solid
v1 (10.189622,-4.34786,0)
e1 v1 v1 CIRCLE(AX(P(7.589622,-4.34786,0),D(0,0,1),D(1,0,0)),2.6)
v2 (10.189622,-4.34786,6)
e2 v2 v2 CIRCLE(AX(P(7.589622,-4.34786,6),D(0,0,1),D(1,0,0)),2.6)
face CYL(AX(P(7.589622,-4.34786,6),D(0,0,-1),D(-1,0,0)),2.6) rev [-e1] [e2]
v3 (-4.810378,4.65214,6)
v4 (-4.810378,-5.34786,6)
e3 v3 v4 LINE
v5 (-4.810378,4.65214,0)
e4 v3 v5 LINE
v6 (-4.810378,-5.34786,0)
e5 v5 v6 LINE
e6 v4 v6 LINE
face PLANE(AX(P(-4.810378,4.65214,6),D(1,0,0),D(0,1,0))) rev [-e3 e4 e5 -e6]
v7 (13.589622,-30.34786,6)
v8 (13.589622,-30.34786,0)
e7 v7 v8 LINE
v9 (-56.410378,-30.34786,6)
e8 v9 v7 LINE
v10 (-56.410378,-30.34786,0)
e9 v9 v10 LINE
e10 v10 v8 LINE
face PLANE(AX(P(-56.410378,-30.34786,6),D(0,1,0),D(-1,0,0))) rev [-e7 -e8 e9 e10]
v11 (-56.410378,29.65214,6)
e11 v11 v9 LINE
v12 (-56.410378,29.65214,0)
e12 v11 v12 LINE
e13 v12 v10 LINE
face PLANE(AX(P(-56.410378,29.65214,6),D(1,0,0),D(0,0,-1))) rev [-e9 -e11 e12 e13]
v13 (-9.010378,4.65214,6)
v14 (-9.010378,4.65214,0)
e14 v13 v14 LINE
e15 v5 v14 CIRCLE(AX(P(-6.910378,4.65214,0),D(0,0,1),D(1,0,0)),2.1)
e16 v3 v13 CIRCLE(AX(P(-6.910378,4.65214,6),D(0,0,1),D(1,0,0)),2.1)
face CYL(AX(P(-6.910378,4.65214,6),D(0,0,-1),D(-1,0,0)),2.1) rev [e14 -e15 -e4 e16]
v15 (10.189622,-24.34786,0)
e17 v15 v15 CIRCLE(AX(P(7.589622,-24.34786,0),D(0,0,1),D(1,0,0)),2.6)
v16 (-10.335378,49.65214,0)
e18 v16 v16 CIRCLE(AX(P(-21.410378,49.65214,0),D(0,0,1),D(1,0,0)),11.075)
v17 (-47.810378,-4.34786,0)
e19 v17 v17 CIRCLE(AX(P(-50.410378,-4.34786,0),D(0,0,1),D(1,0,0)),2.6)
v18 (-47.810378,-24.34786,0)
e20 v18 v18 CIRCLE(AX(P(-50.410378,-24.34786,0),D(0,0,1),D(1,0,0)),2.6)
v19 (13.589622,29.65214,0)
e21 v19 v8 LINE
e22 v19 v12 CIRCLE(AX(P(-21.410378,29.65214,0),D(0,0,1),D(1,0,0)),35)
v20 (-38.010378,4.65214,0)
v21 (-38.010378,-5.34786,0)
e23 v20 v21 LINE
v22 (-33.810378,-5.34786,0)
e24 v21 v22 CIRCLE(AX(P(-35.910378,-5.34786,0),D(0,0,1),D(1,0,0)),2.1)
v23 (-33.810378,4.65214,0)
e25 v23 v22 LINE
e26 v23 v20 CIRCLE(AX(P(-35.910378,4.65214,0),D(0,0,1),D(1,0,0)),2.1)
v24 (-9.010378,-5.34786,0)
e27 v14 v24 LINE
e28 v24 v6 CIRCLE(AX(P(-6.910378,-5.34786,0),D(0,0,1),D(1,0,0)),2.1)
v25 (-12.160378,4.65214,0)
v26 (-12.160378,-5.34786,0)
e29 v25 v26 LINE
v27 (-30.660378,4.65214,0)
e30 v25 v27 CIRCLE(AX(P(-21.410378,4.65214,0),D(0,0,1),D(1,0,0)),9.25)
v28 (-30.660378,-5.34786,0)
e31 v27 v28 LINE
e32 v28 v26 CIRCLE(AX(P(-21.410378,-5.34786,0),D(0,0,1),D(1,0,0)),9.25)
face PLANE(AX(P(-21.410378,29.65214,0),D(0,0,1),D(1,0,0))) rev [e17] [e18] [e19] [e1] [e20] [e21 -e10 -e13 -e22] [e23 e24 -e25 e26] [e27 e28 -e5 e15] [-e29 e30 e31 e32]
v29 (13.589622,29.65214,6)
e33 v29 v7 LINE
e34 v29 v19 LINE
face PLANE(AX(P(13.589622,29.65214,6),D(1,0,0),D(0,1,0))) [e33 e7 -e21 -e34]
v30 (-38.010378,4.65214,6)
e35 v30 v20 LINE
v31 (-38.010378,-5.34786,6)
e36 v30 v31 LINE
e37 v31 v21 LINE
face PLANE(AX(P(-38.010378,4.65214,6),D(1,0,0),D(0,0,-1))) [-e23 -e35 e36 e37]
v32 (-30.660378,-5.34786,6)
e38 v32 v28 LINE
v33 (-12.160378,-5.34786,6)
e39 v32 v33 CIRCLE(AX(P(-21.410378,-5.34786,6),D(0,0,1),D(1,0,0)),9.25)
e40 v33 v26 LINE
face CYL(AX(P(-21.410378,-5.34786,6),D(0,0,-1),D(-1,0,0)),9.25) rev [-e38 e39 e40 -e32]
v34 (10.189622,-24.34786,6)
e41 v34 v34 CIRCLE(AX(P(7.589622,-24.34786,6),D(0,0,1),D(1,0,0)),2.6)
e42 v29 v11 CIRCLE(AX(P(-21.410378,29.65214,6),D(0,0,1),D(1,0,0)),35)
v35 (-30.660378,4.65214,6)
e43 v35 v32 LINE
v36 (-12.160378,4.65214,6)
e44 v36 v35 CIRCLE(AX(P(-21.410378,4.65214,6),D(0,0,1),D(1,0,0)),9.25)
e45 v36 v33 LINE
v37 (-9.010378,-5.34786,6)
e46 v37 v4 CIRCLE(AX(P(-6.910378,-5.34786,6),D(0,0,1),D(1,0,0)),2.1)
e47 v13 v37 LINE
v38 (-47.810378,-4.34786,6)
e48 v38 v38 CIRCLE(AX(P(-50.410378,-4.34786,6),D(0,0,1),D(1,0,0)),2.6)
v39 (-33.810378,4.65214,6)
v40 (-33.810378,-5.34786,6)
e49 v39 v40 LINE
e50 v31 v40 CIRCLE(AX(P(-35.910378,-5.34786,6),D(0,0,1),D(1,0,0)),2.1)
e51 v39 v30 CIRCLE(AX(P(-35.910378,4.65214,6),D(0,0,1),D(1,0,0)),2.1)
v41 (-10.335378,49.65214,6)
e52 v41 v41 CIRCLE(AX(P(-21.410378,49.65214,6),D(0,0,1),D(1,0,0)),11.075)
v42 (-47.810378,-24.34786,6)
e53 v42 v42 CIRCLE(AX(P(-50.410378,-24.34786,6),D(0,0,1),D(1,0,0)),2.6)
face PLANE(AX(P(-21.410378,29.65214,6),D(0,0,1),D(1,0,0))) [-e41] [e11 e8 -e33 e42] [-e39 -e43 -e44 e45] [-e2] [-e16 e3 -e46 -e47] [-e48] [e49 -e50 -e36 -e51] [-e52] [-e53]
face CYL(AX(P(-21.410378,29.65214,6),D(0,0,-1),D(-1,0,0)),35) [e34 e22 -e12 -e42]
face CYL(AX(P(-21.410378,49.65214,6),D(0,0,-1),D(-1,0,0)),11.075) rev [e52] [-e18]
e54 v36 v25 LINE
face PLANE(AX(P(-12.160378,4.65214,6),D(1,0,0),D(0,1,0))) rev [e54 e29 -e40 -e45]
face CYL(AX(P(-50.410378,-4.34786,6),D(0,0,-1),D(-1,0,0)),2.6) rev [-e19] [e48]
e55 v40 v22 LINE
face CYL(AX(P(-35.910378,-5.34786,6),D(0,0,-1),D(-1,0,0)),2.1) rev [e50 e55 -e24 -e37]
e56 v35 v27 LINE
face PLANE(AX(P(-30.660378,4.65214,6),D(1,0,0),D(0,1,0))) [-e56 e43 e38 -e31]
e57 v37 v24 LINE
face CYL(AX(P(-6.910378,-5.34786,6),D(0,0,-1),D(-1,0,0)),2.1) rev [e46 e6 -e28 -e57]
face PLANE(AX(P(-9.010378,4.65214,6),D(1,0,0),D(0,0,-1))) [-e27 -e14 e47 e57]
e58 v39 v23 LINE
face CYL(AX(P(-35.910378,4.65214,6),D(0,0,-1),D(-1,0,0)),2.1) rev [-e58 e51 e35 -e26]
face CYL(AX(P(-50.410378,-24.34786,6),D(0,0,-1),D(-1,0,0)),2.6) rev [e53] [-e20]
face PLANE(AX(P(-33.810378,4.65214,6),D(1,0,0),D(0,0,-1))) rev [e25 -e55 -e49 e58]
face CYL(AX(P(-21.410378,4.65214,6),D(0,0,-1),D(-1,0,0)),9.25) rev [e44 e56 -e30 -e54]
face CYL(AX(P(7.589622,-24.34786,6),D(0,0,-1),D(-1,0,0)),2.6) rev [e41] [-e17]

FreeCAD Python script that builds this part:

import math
import FreeCAD as App
import Part
import Sketcher

V = App.Vector
Q = App.Units.Quantity

doc = App.newDocument("Part")
params = doc.addObject("Spreadsheet::Sheet", "Params")
for row, (alias, value) in enumerate([
    ("sketch1_radius", "35 mm"),
    ("sketch1_diameter", "5.2 mm"),
    ("sketch1_radius2", "2.1 mm"),
    ("sketch1_diameter2", "22.15 mm"),
    ("sketch1_height", "60 mm"),
    ("pad1_length", "6 mm"),
], start=1):
    params.set(f"A{row}", alias)
    params.set(f"B{row}", "=" + value)
    params.setAlias(f"B{row}", alias)

body = doc.addObject("PartDesign::Body", "Body")

sketch1 = body.newObject("Sketcher::SketchObject", "Sketch")
sketch1.AttachmentSupport = (doc.getObject("XY_Plane"), [""])
sketch1.MapMode = "FlatFace"
sketch1.addGeometry([
    Part.LineSegment(V(-56.410378, 29.65214, 0), V(-56.410378, -30.34786, 0)),
    Part.LineSegment(V(-56.410378, -30.34786, 0), V(13.589622, -30.34786, 0)),
    Part.LineSegment(V(13.589622, -30.34786, 0), V(13.589622, 29.65214, 0)),
    Part.ArcOfCircle(Part.Circle(V(-21.410378, 29.65214, 0), V(0, 0, 1), 35), math.radians(0), math.radians(180)),
    Part.Circle(V(-50.410378, -24.34786, 0), V(0, 0, 1), 2.6),
    Part.Circle(V(-50.410378, -4.34786, 0), V(0, 0, 1), 2.6),
    Part.ArcOfCircle(Part.Circle(V(-35.910378, 4.65214, 0), V(0, 0, 1), 2.1), math.radians(0), math.radians(180)),
    Part.LineSegment(V(-33.810378, 4.65214, 0), V(-33.810378, -5.34786, 0)),
    Part.ArcOfCircle(Part.Circle(V(-35.910378, -5.34786, 0), V(0, 0, 1), 2.1), math.radians(180), math.radians(360)),
    Part.LineSegment(V(-38.010378, -5.34786, 0), V(-38.010378, 4.65214, 0)),
    Part.Circle(V(7.589622, -24.34786, 0), V(0, 0, 1), 2.6),
    Part.ArcOfCircle(Part.Circle(V(-21.410378, 4.65214, 0), V(0, 0, 1), 9.25), math.radians(0), math.radians(180)),
    Part.LineSegment(V(-12.160378, 4.65214, 0), V(-12.160378, -5.34786, 0)),
    Part.ArcOfCircle(Part.Circle(V(-21.410378, -5.34786, 0), V(0, 0, 1), 9.25), math.radians(180), math.radians(360)),
    Part.LineSegment(V(-30.660378, -5.34786, 0), V(-30.660378, 4.65214, 0)),
    Part.ArcOfCircle(Part.Circle(V(-6.910378, 4.65214, 0), V(0, 0, 1), 2.1), math.radians(0), math.radians(180)),
    Part.LineSegment(V(-4.810378, 4.65214, 0), V(-4.810378, -5.34786, 0)),
    Part.ArcOfCircle(Part.Circle(V(-6.910378, -5.34786, 0), V(0, 0, 1), 2.1), math.radians(180), math.radians(360)),
    Part.LineSegment(V(-9.010378, -5.34786, 0), V(-9.010378, 4.65214, 0)),
    Part.Circle(V(7.589622, -4.34786, 0), V(0, 0, 1), 2.6),
    Part.Circle(V(-21.410378, 49.65214, 0), V(0, 0, 1), 11.075),
], False)
sketch1.addConstraint([
    Sketcher.Constraint("Coincident", 0, 2, 1, 1),
    Sketcher.Constraint("Coincident", 1, 2, 2, 1),
    Sketcher.Constraint("Tangent", 2, 2, 3, 1),
    Sketcher.Constraint("Tangent", 3, 2, 0, 1),
    Sketcher.Constraint("Tangent", 6, 1, 7, 1),
    Sketcher.Constraint("Tangent", 7, 2, 8, 2),
    Sketcher.Constraint("Tangent", 8, 1, 9, 1),
    Sketcher.Constraint("Tangent", 9, 2, 6, 2),
    Sketcher.Constraint("Tangent", 11, 1, 12, 1),
    Sketcher.Constraint("Tangent", 12, 2, 13, 2),
    Sketcher.Constraint("Tangent", 13, 1, 14, 1),
    Sketcher.Constraint("Tangent", 14, 2, 11, 2),
    Sketcher.Constraint("Tangent", 15, 1, 16, 1),
    Sketcher.Constraint("Tangent", 16, 2, 17, 2),
    Sketcher.Constraint("Tangent", 17, 1, 18, 1),
    Sketcher.Constraint("Tangent", 18, 2, 15, 2),
    Sketcher.Constraint("Vertical", 0),
    Sketcher.Constraint("Horizontal", 1),
    Sketcher.Constraint("Vertical", 2),
    Sketcher.Constraint("Vertical", 7),
    Sketcher.Constraint("Vertical", 9),
    Sketcher.Constraint("Vertical", 12),
    Sketcher.Constraint("Vertical", 14),
    Sketcher.Constraint("Vertical", 16),
    Sketcher.Constraint("Vertical", 18),
    Sketcher.Constraint("Equal", 4, 5),
    Sketcher.Constraint("Equal", 5, 10),
    Sketcher.Constraint("Equal", 8, 15),
    Sketcher.Constraint("Equal", 10, 19),
    Sketcher.Constraint("Horizontal", 4, 3, 10, 3),
    Sketcher.Constraint("Horizontal", 6, 3, 11, 3),
    Sketcher.Constraint("Horizontal", 8, 3, 13, 3),
    Sketcher.Constraint("Horizontal", 11, 3, 15, 3),
    Sketcher.Constraint("Horizontal", 13, 3, 17, 3),
    Sketcher.Constraint("Horizontal", 5, 3, 19, 3),
    Sketcher.Constraint("Vertical", 4, 3, 5, 3),
    Sketcher.Constraint("Vertical", 3, 3, 11, 3),
    Sketcher.Constraint("Vertical", 10, 3, 19, 3),
    Sketcher.Constraint("Vertical", 13, 3, 20, 3),
    Sketcher.Constraint("Radius", 3, Q("35 mm")),
    Sketcher.Constraint("Diameter", 4, Q("5.2 mm")),
    Sketcher.Constraint("Radius", 6, Q("2.1 mm")),
    Sketcher.Constraint("Diameter", 20, Q("22.15 mm")),
    Sketcher.Constraint("DistanceY", 0, 2, 0, 1, Q("60 mm")),
    Sketcher.Constraint("DistanceY", 7, 2, 7, 1, Q("10 mm")),
    Sketcher.Constraint("Radius", 11, Q("9.25 mm")),
    Sketcher.Constraint("DistanceX", 4, 3, 3, 3, Q("29 mm")),
    Sketcher.Constraint("DistanceY", 4, 3, 3, 3, Q("54 mm")),
    Sketcher.Constraint("DistanceY", 4, 3, 5, 3, Q("20 mm")),
    Sketcher.Constraint("DistanceY", 5, 3, 6, 3, Q("9 mm")),
    Sketcher.Constraint("DistanceX", 4, 3, 10, 3, Q("58 mm")),
    Sketcher.Constraint("DistanceX", 6, 3, 15, 3, Q("29 mm")),
    Sketcher.Constraint("DistanceY", 3, 3, 20, 3, Q("20 mm")),
    Sketcher.Constraint("DistanceX", 5, 3, 6, 3, Q("14.5 mm")),
    Sketcher.Constraint("DistanceY", -1, 1, 3, 3, Q("29.65214 mm")),
    Sketcher.Constraint("DistanceX", 3, 3, -1, 1, Q("21.410378 mm")),
])
sketch1.setExpression("Constraints[39]", "Params.sketch1_radius")
sketch1.setExpression("Constraints[40]", "Params.sketch1_diameter")
sketch1.setExpression("Constraints[41]", "Params.sketch1_radius2")
sketch1.setExpression("Constraints[42]", "Params.sketch1_diameter2")
sketch1.setExpression("Constraints[43]", "Params.sketch1_height")
pad1 = body.newObject("PartDesign::Pad", "Pad")
pad1.Profile = sketch1
pad1.setExpression("Length", "Params.pad1_length")

doc.recompute()
